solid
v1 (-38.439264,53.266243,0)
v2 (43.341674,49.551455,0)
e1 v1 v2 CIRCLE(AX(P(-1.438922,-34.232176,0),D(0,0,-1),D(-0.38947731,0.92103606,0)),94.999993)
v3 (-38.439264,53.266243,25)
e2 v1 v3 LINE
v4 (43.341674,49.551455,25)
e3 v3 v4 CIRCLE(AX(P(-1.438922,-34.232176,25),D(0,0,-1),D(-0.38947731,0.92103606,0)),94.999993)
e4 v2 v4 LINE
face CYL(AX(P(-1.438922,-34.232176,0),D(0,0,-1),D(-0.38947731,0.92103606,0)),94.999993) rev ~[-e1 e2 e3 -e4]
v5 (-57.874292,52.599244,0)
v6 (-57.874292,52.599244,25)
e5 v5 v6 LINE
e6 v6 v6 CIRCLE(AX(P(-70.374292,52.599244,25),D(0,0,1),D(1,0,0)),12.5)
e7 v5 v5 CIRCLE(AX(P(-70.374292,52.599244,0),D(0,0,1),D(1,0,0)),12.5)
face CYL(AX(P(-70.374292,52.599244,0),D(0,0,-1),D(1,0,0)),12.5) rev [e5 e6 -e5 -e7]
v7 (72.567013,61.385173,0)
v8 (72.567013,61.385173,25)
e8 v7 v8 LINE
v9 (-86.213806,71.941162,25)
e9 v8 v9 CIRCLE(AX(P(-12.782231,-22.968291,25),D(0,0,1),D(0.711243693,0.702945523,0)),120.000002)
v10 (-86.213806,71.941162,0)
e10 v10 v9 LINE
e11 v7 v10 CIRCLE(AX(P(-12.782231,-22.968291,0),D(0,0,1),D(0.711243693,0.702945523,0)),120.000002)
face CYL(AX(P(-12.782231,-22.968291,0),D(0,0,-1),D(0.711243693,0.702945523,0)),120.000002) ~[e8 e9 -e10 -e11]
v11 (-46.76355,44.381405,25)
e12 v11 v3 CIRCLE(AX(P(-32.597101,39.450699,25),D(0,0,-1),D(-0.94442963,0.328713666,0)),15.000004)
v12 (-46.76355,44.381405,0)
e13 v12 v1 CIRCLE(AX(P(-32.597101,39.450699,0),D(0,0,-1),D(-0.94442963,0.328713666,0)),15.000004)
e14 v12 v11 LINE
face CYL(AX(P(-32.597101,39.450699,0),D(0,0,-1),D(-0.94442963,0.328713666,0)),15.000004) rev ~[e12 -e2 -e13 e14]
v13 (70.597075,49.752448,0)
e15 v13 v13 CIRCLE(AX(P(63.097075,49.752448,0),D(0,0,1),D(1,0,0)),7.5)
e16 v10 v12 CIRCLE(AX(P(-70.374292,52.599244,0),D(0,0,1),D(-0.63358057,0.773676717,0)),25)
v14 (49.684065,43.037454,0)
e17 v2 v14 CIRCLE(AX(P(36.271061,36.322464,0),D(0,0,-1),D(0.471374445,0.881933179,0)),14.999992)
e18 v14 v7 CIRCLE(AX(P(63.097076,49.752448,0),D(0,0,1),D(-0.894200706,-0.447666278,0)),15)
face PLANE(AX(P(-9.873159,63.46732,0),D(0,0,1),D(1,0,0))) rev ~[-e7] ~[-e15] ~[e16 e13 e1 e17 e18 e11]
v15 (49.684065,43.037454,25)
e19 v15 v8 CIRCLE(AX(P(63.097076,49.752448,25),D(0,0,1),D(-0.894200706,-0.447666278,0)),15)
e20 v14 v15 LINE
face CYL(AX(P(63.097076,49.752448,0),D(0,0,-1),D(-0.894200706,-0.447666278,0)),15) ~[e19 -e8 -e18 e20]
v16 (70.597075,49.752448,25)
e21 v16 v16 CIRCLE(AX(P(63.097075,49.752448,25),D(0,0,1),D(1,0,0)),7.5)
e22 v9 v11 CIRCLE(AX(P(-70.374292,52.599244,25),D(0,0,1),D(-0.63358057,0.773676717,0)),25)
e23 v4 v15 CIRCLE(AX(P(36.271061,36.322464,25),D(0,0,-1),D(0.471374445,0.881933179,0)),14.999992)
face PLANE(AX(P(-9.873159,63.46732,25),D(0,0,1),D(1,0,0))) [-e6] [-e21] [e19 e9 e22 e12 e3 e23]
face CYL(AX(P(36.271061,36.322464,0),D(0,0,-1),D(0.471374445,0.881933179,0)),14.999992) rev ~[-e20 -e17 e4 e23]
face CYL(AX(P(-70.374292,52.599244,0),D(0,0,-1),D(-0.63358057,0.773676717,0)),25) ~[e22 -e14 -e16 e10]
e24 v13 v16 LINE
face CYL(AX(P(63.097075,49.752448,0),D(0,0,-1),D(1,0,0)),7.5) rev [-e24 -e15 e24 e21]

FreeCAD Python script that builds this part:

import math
import FreeCAD as App
import Part
import Sketcher

V = App.Vector
Q = App.Units.Quantity

doc = App.newDocument("Part")
body = doc.addObject("PartDesign::Body", "Body")

sketch1 = body.newObject("Sketcher::SketchObject", "Sketch")
sketch1.AttachmentSupport = (doc.getObject("XY_Plane"), [""])
sketch1.MapMode = "FlatFace"
sketch1.addGeometry([
    Part.ArcOfCircle(Part.Circle(V(-12.782231, -22.968291, 0), V(0, 0, 1), 120.000002), math.radians(44.663804), math.radians(127.72917)),
    Part.ArcOfCircle(Part.Circle(V(-70.374292, 52.599244, 0), V(0, 0, 1), 25), math.radians(129.314787), math.radians(340.809288)),
    Part.ArcOfCircle(Part.Circle(V(-32.597101, 39.450699, 0), V(0, 0, 1), 15.000004), math.radians(112.921985), math.radians(160.809281)),
    Part.ArcOfCircle(Part.Circle(V(-1.438922, -34.232176, 0), V(0, 0, 1), 94.999993), math.radians(61.87643), math.radians(112.92198)),
    Part.ArcOfCircle(Part.Circle(V(36.271061, 36.322464, 0), V(0, 0, 1), 14.999992), math.radians(26.594049), math.radians(61.876448)),
    Part.ArcOfCircle(Part.Circle(V(63.097076, 49.752448, 0), V(0, 0, 1), 15), math.radians(-153.405947), math.radians(50.851746)),
    Part.Circle(V(63.097075, 49.752448, 0), V(0, 0, 1), 7.5),
    Part.Circle(V(-70.374292, 52.599244, 0), V(0, 0, 1), 12.5),
], False)
sketch1.addConstraint([
    Sketcher.Constraint("Coincident", 0, 2, 1, 1),
    Sketcher.Constraint("Coincident", 1, 2, 2, 2),
    Sketcher.Constraint("Coincident", 2, 1, 3, 2),
    Sketcher.Constraint("Coincident", 3, 1, 4, 2),
    Sketcher.Constraint("Coincident", 4, 1, 5, 1),
    Sketcher.Constraint("Coincident", 5, 2, 0, 1),
    Sketcher.Constraint("Coincident", 6, 3, 5, 3),
    Sketcher.Constraint("Coincident", 7, 3, 1, 3),
    Sketcher.Constraint("Diameter", 6, Q("15 mm")),
    Sketcher.Constraint("Diameter", 7, Q("25 mm")),
    Sketcher.Constraint("Radius", 0, Q("120.000002 mm")),
    Sketcher.Constraint("Radius", 1, Q("25 mm")),
    Sketcher.Constraint("Radius", 5, Q("15 mm")),
    Sketcher.Constraint("Radius", 4, Q("14.999992 mm")),
    Sketcher.Constraint("Radius", 2, Q("15.000004 mm")),
    Sketcher.Constraint("Radius", 3, Q("94.999993 mm")),
    Sketcher.Constraint("DistanceY", 1, 3, 2, 1, Q("0.666999 mm")),
    Sketcher.Constraint("DistanceY", 4, 1, 3, 1, Q("6.514001 mm")),
    Sketcher.Constraint("DistanceX", 2, 3, -1, 1, Q("32.597101 mm")),
    Sketcher.Constraint("DistanceY", -1, 1, 2, 3, Q("39.450699 mm")),
    Sketcher.Constraint("DistanceX", 3, 1, 6, 3, Q("19.755401 mm")),
    Sketcher.Constraint("DistanceX", 0, 3, -1, 1, Q("12.782231 mm")),
    Sketcher.Constraint("DistanceY", 0, 3, -1, 1, Q("22.968291 mm")),
    Sketcher.Constraint("DistanceX", 1, 3, -1, 1, Q("70.374292 mm")),
    Sketcher.Constraint("DistanceX", -1, 1, 4, 3, Q("36.271061 mm")),
    Sketcher.Constraint("DistanceY", -1, 1, 5, 3, Q("49.752448 mm")),
    Sketcher.Constraint("DistanceX", 1, 2, -1, 1, Q("46.76355 mm")),
    Sketcher.Constraint("DistanceX", 0, 3, 3, 3, Q("11.343309 mm")),
])
pad1 = body.newObject("PartDesign::Pad", "Pad")
pad1.Profile = sketch1
pad1.Length = 25

doc.recompute()
